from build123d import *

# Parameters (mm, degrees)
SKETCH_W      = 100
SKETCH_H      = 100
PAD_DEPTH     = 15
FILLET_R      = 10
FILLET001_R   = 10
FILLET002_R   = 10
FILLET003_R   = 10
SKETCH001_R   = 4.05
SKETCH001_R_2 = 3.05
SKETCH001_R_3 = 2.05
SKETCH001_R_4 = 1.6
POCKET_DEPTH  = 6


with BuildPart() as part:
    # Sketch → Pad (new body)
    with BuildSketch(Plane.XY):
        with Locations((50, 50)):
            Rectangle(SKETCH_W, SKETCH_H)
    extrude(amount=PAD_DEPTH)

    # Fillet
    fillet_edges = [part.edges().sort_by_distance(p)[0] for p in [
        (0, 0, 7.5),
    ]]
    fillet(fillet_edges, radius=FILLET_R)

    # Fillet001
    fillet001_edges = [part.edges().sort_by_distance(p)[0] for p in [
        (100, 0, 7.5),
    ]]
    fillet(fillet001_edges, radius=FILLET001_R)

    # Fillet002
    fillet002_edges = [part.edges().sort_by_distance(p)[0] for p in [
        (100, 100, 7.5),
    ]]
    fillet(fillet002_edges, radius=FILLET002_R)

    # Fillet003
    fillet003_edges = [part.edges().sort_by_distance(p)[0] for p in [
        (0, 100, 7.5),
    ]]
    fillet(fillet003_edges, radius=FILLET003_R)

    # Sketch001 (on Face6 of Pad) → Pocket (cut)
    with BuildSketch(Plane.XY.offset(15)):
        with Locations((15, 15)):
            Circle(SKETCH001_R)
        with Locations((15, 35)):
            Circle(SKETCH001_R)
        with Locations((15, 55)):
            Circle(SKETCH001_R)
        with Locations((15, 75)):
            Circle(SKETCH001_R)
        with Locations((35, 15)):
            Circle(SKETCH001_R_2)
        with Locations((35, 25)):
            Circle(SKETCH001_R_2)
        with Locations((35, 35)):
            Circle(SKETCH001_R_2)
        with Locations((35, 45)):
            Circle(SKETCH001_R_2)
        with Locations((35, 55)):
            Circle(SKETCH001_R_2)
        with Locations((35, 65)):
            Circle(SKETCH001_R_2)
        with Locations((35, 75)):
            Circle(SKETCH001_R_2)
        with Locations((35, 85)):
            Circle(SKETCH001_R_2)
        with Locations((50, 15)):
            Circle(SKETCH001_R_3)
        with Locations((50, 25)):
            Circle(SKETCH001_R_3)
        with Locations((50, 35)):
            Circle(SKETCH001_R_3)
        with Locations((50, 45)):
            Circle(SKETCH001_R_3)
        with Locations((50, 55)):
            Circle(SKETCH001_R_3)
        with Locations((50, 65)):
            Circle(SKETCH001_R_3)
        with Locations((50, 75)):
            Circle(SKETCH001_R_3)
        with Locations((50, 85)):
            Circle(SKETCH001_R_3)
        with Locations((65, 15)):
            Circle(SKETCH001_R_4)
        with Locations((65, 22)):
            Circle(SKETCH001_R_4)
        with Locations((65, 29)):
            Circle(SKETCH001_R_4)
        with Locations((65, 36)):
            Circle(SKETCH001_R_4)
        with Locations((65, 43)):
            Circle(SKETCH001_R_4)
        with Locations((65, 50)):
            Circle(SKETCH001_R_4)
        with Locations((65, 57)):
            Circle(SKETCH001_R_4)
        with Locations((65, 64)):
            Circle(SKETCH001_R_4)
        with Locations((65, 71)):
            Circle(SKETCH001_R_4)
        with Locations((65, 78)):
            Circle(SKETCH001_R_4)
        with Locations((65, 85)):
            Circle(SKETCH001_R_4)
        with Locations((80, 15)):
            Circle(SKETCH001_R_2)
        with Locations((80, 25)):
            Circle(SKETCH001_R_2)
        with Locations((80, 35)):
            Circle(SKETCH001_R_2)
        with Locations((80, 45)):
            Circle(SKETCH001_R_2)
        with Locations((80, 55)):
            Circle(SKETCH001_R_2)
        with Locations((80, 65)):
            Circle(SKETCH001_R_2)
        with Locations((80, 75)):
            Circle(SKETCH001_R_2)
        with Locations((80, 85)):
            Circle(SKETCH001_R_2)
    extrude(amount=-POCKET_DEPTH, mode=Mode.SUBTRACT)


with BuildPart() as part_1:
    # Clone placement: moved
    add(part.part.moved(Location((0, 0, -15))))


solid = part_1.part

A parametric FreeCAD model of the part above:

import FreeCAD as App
import Part
import Sketcher
from FreeCAD import Vector
Q = App.Units.Quantity


def edges_at(feature, points):
    """Names of the edges that pass closest to the given points."""
    edges = feature.Shape.Edges
    near = lambda p: min(range(len(edges)), key=lambda i: edges[i].distToShape(Part.Vertex(*p))[0])
    return sorted({f"Edge{near(p) + 1}" for p in points})

doc = App.newDocument("Part")
body = doc.addObject("PartDesign::Body", "Body")

sketch1 = body.newObject("Sketcher::SketchObject", "Sketch")
sketch1.AttachmentSupport = (doc.getObject("XY_Plane"), [""])
sketch1.MapMode = "FlatFace"
sketch1.addGeometry(Part.LineSegment(Vector(0, 100, 0), Vector(0, 0, 0)), False)
sketch1.addGeometry(Part.LineSegment(Vector(0, 0, 0), Vector(100, 0, 0)), False)
sketch1.addGeometry(Part.LineSegment(Vector(100, 0, 0), Vector(100, 100, 0)), False)
sketch1.addGeometry(Part.LineSegment(Vector(100, 100, 0), Vector(0, 100, 0)), False)
sketch1.addConstraint(Sketcher.Constraint("Coincident", 0, 2, 1, 1))
sketch1.addConstraint(Sketcher.Constraint("Coincident", 1, 2, 2, 1))
sketch1.addConstraint(Sketcher.Constraint("Coincident", 2, 2, 3, 1))
sketch1.addConstraint(Sketcher.Constraint("Coincident", 3, 2, 0, 1))
sketch1.addConstraint(Sketcher.Constraint("Vertical", 0))
sketch1.addConstraint(Sketcher.Constraint("Horizontal", 1))
sketch1.addConstraint(Sketcher.Constraint("Vertical", 2))
sketch1.addConstraint(Sketcher.Constraint("Horizontal", 3))
sketch1.addConstraint(Sketcher.Constraint("Coincident", 0, 2, -1, 1))
sketch1.addConstraint(Sketcher.Constraint("Equal", 3, 0))
sketch1.addConstraint(Sketcher.Constraint("DistanceX", 1, 1, 1, 2, Q("100 mm")))
pad1 = body.newObject("PartDesign::Pad", "Pad")
pad1.Profile = sketch1
pad1.Length = 15
doc.recompute()

fillet = body.newObject("PartDesign::Fillet", "Fillet")
fillet.Base = (pad1, edges_at(pad1, [(0, 0, 7.5)]))
fillet.Radius = 10
doc.recompute()

fillet2 = body.newObject("PartDesign::Fillet", "Fillet001")
fillet2.Base = (fillet, edges_at(fillet, [(100, 0, 7.5)]))
fillet2.Radius = 10
doc.recompute()

fillet3 = body.newObject("PartDesign::Fillet", "Fillet002")
fillet3.Base = (fillet2, edges_at(fillet2, [(100, 100, 7.5)]))
fillet3.Radius = 10
doc.recompute()

fillet4 = body.newObject("PartDesign::Fillet", "Fillet003")
fillet4.Base = (fillet3, edges_at(fillet3, [(0, 100, 7.5)]))
fillet4.Radius = 10

sketch2 = body.newObject("Sketcher::SketchObject", "Sketch001")
sketch2.AttachmentSupport = (doc.getObject("XY_Plane"), [""])
sketch2.MapMode = "FlatFace"
sketch2.AttachmentOffset = App.Placement(Vector(0, 0, 15), App.Rotation())
sketch2.addGeometry(Part.Circle(Vector(15, 15, 0), Vector(0, 0, 1), 4), False)
sketch2.addGeometry(Part.Circle(Vector(15, 35, 0), Vector(0, 0, 1), 4), False)
sketch2.addGeometry(Part.Circle(Vector(15, 55, 0), Vector(0, 0, 1), 4), False)
sketch2.addGeometry(Part.Circle(Vector(15, 75, 0), Vector(0, 0, 1), 4), False)
sketch2.addGeometry(Part.Circle(Vector(35, 15, 0), Vector(0, 0, 1), 3), False)
sketch2.addGeometry(Part.Circle(Vector(35, 25, 0), Vector(0, 0, 1), 3), False)
sketch2.addGeometry(Part.Circle(Vector(35, 35, 0), Vector(0, 0, 1), 3), False)
sketch2.addGeometry(Part.Circle(Vector(35, 45, 0), Vector(0, 0, 1), 3), False)
sketch2.addGeometry(Part.Circle(Vector(35, 55, 0), Vector(0, 0, 1), 3), False)
sketch2.addGeometry(Part.Circle(Vector(35, 65, 0), Vector(0, 0, 1), 3), False)
sketch2.addGeometry(Part.Circle(Vector(35, 75, 0), Vector(0, 0, 1), 3), False)
sketch2.addGeometry(Part.Circle(Vector(35, 85, 0), Vector(0, 0, 1), 3), False)
sketch2.addGeometry(Part.Circle(Vector(50, 15, 0), Vector(0, 0, 1), 2), False)
sketch2.addGeometry(Part.Circle(Vector(50, 25, 0), Vector(0, 0, 1), 2), False)
sketch2.addGeometry(Part.Circle(Vector(50, 35, 0), Vector(0, 0, 1), 2), False)
sketch2.addGeometry(Part.Circle(Vector(50, 45, 0), Vector(0, 0, 1), 2), False)
sketch2.addGeometry(Part.Circle(Vector(50, 55, 0), Vector(0, 0, 1), 2), False)
sketch2.addGeometry(Part.Circle(Vector(50, 65, 0), Vector(0, 0, 1), 2), False)
sketch2.addGeometry(Part.Circle(Vector(50, 75, 0), Vector(0, 0, 1), 2), False)
sketch2.addGeometry(Part.Circle(Vector(50, 85, 0), Vector(0, 0, 1), 2), False)
sketch2.addGeometry(Part.Circle(Vector(65, 15, 0), Vector(0, 0, 1), 1.6), False)
sketch2.addGeometry(Part.Circle(Vector(65, 22, 0), Vector(0, 0, 1), 1.6), False)
sketch2.addGeometry(Part.Circle(Vector(65, 29, 0), Vector(0, 0, 1), 1.6), False)
sketch2.addGeometry(Part.Circle(Vector(65, 36, 0), Vector(0, 0, 1), 1.6), False)
sketch2.addGeometry(Part.Circle(Vector(65, 43, 0), Vector(0, 0, 1), 1.6), False)
sketch2.addGeometry(Part.Circle(Vector(65, 50, 0), Vector(0, 0, 1), 1.6), False)
sketch2.addGeometry(Part.Circle(Vector(65, 57, 0), Vector(0, 0, 1), 1.6), False)
sketch2.addGeometry(Part.Circle(Vector(65, 64, 0), Vector(0, 0, 1), 1.6), False)
sketch2.addGeometry(Part.Circle(Vector(65, 71, 0), Vector(0, 0, 1), 1.6), False)
sketch2.addGeometry(Part.Circle(Vector(65, 78, 0), Vector(0, 0, 1), 1.6), False)
sketch2.addGeometry(Part.Circle(Vector(65, 85, 0), Vector(0, 0, 1), 1.6), False)
sketch2.addGeometry(Part.Circle(Vector(80, 15, 0), Vector(0, 0, 1), 3), False)
sketch2.addGeometry(Part.Circle(Vector(80, 25, 0), Vector(0, 0, 1), 3), False)
sketch2.addGeometry(Part.Circle(Vector(80, 35, 0), Vector(0, 0, 1), 3), False)
sketch2.addGeometry(Part.Circle(Vector(80, 45, 0), Vector(0, 0, 1), 3), False)
sketch2.addGeometry(Part.Circle(Vector(80, 55, 0), Vector(0, 0, 1), 3), False)
sketch2.addGeometry(Part.Circle(Vector(80, 65, 0), Vector(0, 0, 1), 3), False)
sketch2.addGeometry(Part.Circle(Vector(80, 75, 0), Vector(0, 0, 1), 3), False)
sketch2.addGeometry(Part.Circle(Vector(80, 85, 0), Vector(0, 0, 1), 3), False)
sketch2.addConstraint(Sketcher.Constraint("Equal", 0, 1))
sketch2.addConstraint(Sketcher.Constraint("Equal", 1, 2))
sketch2.addConstraint(Sketcher.Constraint("Equal", 2, 3))
sketch2.addConstraint(Sketcher.Constraint("Equal", 4, 5))
sketch2.addConstraint(Sketcher.Constraint("Equal", 5, 6))
sketch2.addConstraint(Sketcher.Constraint("Equal", 6, 7))
sketch2.addConstraint(Sketcher.Constraint("Equal", 7, 8))
sketch2.addConstraint(Sketcher.Constraint("Equal", 8, 9))
sketch2.addConstraint(Sketcher.Constraint("Equal", 9, 10))
sketch2.addConstraint(Sketcher.Constraint("Equal", 10, 11))
sketch2.addConstraint(Sketcher.Constraint("Equal", 12, 13))
sketch2.addConstraint(Sketcher.Constraint("Equal", 13, 14))
sketch2.addConstraint(Sketcher.Constraint("Equal", 14, 15))
sketch2.addConstraint(Sketcher.Constraint("Equal", 15, 16))
sketch2.addConstraint(Sketcher.Constraint("Equal", 16, 17))
sketch2.addConstraint(Sketcher.Constraint("Equal", 17, 18))
sketch2.addConstraint(Sketcher.Constraint("Equal", 18, 19))
sketch2.addConstraint(Sketcher.Constraint("Equal", 20, 21))
sketch2.addConstraint(Sketcher.Constraint("Equal", 21, 22))
sketch2.addConstraint(Sketcher.Constraint("Equal", 22, 23))
sketch2.addConstraint(Sketcher.Constraint("Equal", 23, 24))
sketch2.addConstraint(Sketcher.Constraint("Equal", 24, 25))
sketch2.addConstraint(Sketcher.Constraint("Equal", 25, 26))
sketch2.addConstraint(Sketcher.Constraint("Equal", 26, 27))
sketch2.addConstraint(Sketcher.Constraint("Equal", 27, 28))
sketch2.addConstraint(Sketcher.Constraint("Equal", 28, 29))
sketch2.addConstraint(Sketcher.Constraint("Equal", 29, 30))
sketch2.addConstraint(Sketcher.Constraint("Equal", 11, 31))
sketch2.addConstraint(Sketcher.Constraint("Equal", 31, 32))
sketch2.addConstraint(Sketcher.Constraint("Equal", 32, 33))
sketch2.addConstraint(Sketcher.Constraint("Equal", 33, 34))
sketch2.addConstraint(Sketcher.Constraint("Equal", 34, 35))
sketch2.addConstraint(Sketcher.Constraint("Equal", 35, 36))
sketch2.addConstraint(Sketcher.Constraint("Equal", 36, 37))
sketch2.addConstraint(Sketcher.Constraint("Equal", 37, 38))
sketch2.addConstraint(Sketcher.Constraint("Horizontal", 0, 3, 4, 3))
sketch2.addConstraint(Sketcher.Constraint("Horizontal", 1, 3, 6, 3))
sketch2.addConstraint(Sketcher.Constraint("Horizontal", 2, 3, 8, 3))
sketch2.addConstraint(Sketcher.Constraint("Horizontal", 3, 3, 10, 3))
sketch2.addConstraint(Sketcher.Constraint("Horizontal", 4, 3, 12, 3))
sketch2.addConstraint(Sketcher.Constraint("Horizontal", 5, 3, 13, 3))
sketch2.addConstraint(Sketcher.Constraint("Horizontal", 6, 3, 14, 3))
sketch2.addConstraint(Sketcher.Constraint("Horizontal", 7, 3, 15, 3))
sketch2.addConstraint(Sketcher.Constraint("Horizontal", 8, 3, 16, 3))
sketch2.addConstraint(Sketcher.Constraint("Horizontal", 9, 3, 17, 3))
sketch2.addConstraint(Sketcher.Constraint("Horizontal", 10, 3, 18, 3))
sketch2.addConstraint(Sketcher.Constraint("Horizontal", 11, 3, 19, 3))
sketch2.addConstraint(Sketcher.Constraint("Horizontal", 12, 3, 20, 3))
sketch2.addConstraint(Sketcher.Constraint("Horizontal", 19, 3, 30, 3))
sketch2.addConstraint(Sketcher.Constraint("Horizontal", 20, 3, 31, 3))
sketch2.addConstraint(Sketcher.Constraint("Horizontal", 13, 3, 32, 3))
sketch2.addConstraint(Sketcher.Constraint("Horizontal", 14, 3, 33, 3))
sketch2.addConstraint(Sketcher.Constraint("Horizontal", 15, 3, 34, 3))
sketch2.addConstraint(Sketcher.Constraint("Horizontal", 16, 3, 35, 3))
sketch2.addConstraint(Sketcher.Constraint("Horizontal", 17, 3, 36, 3))
sketch2.addConstraint(Sketcher.Constraint("Horizontal", 18, 3, 37, 3))
sketch2.addConstraint(Sketcher.Constraint("Horizontal", 30, 3, 38, 3))
sketch2.addConstraint(Sketcher.Constraint("Vertical", 0, 3, 1, 3))
sketch2.addConstraint(Sketcher.Constraint("Vertical", 1, 3, 2, 3))
sketch2.addConstraint(Sketcher.Constraint("Vertical", 2, 3, 3, 3))
sketch2.addConstraint(Sketcher.Constraint("Vertical", 4, 3, 5, 3))
sketch2.addConstraint(Sketcher.Constraint("Vertical", 5, 3, 6, 3))
sketch2.addConstraint(Sketcher.Constraint("Vertical", 6, 3, 7, 3))
sketch2.addConstraint(Sketcher.Constraint("Vertical", 7, 3, 8, 3))
sketch2.addConstraint(Sketcher.Constraint("Vertical", 8, 3, 9, 3))
sketch2.addConstraint(Sketcher.Constraint("Vertical", 9, 3, 10, 3))
sketch2.addConstraint(Sketcher.Constraint("Vertical", 10, 3, 11, 3))
sketch2.addConstraint(Sketcher.Constraint("Vertical", 12, 3, 13, 3))
sketch2.addConstraint(Sketcher.Constraint("Vertical", 13, 3, 14, 3))
sketch2.addConstraint(Sketcher.Constraint("Vertical", 14, 3, 15, 3))
sketch2.addConstraint(Sketcher.Constraint("Vertical", 15, 3, 16, 3))
sketch2.addConstraint(Sketcher.Constraint("Vertical", 16, 3, 17, 3))
sketch2.addConstraint(Sketcher.Constraint("Vertical", 17, 3, 18, 3))
sketch2.addConstraint(Sketcher.Constraint("Vertical", 18, 3, 19, 3))
sketch2.addConstraint(Sketcher.Constraint("Vertical", 20, 3, 21, 3))
sketch2.addConstraint(Sketcher.Constraint("Vertical", 21, 3, 22, 3))
sketch2.addConstraint(Sketcher.Constraint("Vertical", 22, 3, 23, 3))
sketch2.addConstraint(Sketcher.Constraint("Vertical", 23, 3, 24, 3))
sketch2.addConstraint(Sketcher.Constraint("Vertical", 24, 3, 25, 3))
sketch2.addConstraint(Sketcher.Constraint("Vertical", 25, 3, 26, 3))
sketch2.addConstraint(Sketcher.Constraint("Vertical", 26, 3, 27, 3))
sketch2.addConstraint(Sketcher.Constraint("Vertical", 27, 3, 28, 3))
sketch2.addConstraint(Sketcher.Constraint("Vertical", 28, 3, 29, 3))
sketch2.addConstraint(Sketcher.Constraint("Vertical", 29, 3, 30, 3))
sketch2.addConstraint(Sketcher.Constraint("Vertical", 31, 3, 32, 3))
sketch2.addConstraint(Sketcher.Constraint("Vertical", 32, 3, 33, 3))
sketch2.addConstraint(Sketcher.Constraint("Vertical", 33, 3, 34, 3))
sketch2.addConstraint(Sketcher.Constraint("Vertical", 34, 3, 35, 3))
sketch2.addConstraint(Sketcher.Constraint("Vertical", 35, 3, 36, 3))
sketch2.addConstraint(Sketcher.Constraint("Vertical", 36, 3, 37, 3))
sketch2.addConstraint(Sketcher.Constraint("Vertical", 37, 3, 38, 3))
sketch2.addConstraint(Sketcher.Constraint("Diameter", 0, Q("8.1 mm")))
sketch2.addConstraint(Sketcher.Constraint("Diameter", 4, Q("6.1 mm")))
sketch2.addConstraint(Sketcher.Constraint("Diameter", 12, Q("4.1 mm")))
sketch2.addConstraint(Sketcher.Constraint("Diameter", 20, Q("3.2 mm")))
sketch2.addConstraint(Sketcher.Constraint("DistanceX", -1, 1, 0, 3, Q("15 mm")))
sketch2.addConstraint(Sketcher.Constraint("DistanceY", -1, 1, 0, 3, Q("15 mm")))
sketch2.addConstraint(Sketcher.Constraint("DistanceY", -1, 1, 1, 3, Q("35 mm")))
sketch2.addConstraint(Sketcher.Constraint("DistanceY", -1, 1, 2, 3, Q("55 mm")))
sketch2.addConstraint(Sketcher.Constraint("DistanceY", -1, 1, 3, 3, Q("75 mm")))
sketch2.addConstraint(Sketcher.Constraint("DistanceX", -1, 1, 4, 3, Q("35 mm")))
sketch2.addConstraint(Sketcher.Constraint("DistanceY", -1, 1, 5, 3, Q("25 mm")))
sketch2.addConstraint(Sketcher.Constraint("DistanceY", -1, 1, 7, 3, Q("45 mm")))
sketch2.addConstraint(Sketcher.Constraint("DistanceY", -1, 1, 9, 3, Q("65 mm")))
sketch2.addConstraint(Sketcher.Constraint("DistanceY", -1, 1, 11, 3, Q("85 mm")))
sketch2.addConstraint(Sketcher.Constraint("DistanceX", -1, 1, 12, 3, Q("50 mm")))
sketch2.addConstraint(Sketcher.Constraint("DistanceX", -1, 1, 20, 3, Q("65 mm")))
sketch2.addConstraint(Sketcher.Constraint("DistanceY", -1, 1, 21, 3, Q("22 mm")))
sketch2.addConstraint(Sketcher.Constraint("DistanceY", -1, 1, 22, 3, Q("29 mm")))
sketch2.addConstraint(Sketcher.Constraint("DistanceY", -1, 1, 23, 3, Q("36 mm")))
sketch2.addConstraint(Sketcher.Constraint("DistanceY", -1, 1, 24, 3, Q("43 mm")))
sketch2.addConstraint(Sketcher.Constraint("DistanceY", -1, 1, 25, 3, Q("50 mm")))
sketch2.addConstraint(Sketcher.Constraint("DistanceY", -1, 1, 26, 3, Q("57 mm")))
sketch2.addConstraint(Sketcher.Constraint("DistanceY", -1, 1, 27, 3, Q("64 mm")))
sketch2.addConstraint(Sketcher.Constraint("DistanceY", -1, 1, 28, 3, Q("71 mm")))
sketch2.addConstraint(Sketcher.Constraint("DistanceY", -1, 1, 29, 3, Q("78 mm")))
sketch2.addConstraint(Sketcher.Constraint("DistanceX", -1, 1, 31, 3, Q("80 mm")))
pocket1 = body.newObject("PartDesign::Pocket", "Pocket")
pocket1.Profile = sketch2
pocket1.Length = 6
body2 = doc.addObject("PartDesign::Body", "Body001")
doc.recompute()

body.Placement = App.Placement(Vector(0, 0, -15), App.Rotation(Vector(0, 0, 1), 0))
boolean = body2.newObject("PartDesign::Boolean", "Boolean")
boolean.Type = "Fuse"
boolean.addObjects([body])

doc.recompute()
